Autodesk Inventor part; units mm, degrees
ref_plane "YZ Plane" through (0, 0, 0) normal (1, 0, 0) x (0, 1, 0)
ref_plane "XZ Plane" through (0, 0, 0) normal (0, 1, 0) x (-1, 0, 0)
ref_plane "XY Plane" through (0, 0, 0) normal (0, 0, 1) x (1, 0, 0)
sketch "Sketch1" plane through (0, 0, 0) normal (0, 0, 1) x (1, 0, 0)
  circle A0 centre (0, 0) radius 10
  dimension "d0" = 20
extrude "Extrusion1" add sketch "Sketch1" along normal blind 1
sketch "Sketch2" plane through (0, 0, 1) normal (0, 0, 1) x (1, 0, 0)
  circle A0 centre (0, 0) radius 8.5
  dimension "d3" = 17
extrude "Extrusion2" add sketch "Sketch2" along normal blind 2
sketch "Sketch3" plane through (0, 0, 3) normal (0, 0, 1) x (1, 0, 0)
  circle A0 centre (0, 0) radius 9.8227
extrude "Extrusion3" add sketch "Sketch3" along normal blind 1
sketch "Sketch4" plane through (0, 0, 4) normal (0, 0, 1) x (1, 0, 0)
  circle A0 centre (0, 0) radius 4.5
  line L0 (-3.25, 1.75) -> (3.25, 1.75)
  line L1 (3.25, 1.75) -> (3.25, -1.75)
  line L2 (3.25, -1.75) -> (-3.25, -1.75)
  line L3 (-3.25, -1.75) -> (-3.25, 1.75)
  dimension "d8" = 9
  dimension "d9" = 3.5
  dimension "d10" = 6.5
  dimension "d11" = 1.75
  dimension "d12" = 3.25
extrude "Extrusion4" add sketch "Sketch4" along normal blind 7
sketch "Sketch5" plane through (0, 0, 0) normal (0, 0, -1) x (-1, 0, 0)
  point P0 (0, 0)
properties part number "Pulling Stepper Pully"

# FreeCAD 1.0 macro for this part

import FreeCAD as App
import Part
import Sketcher
from FreeCAD import Vector
Q = App.Units.Quantity

doc = App.newDocument("Part")
body = doc.addObject("PartDesign::Body", "Body")

# Sketch on XY plane
sketch1 = doc.addObject("Sketcher::SketchObject", "Sketch")
body.addObject(sketch1)
sketch1.AttachmentSupport = (doc.XY_Plane, [""])
sketch1.MapMode = "FlatFace"
sketch1.addGeometry(Part.Circle(Vector(0, 0, 0), Vector(0, 0, 1), 10), False)
sketch1.addConstraint(Sketcher.Constraint("Coincident", 0, 3, -1, 1))
sketch1.addConstraint(Sketcher.Constraint("Diameter", 0, Q("20 mm")))
pad1 = doc.addObject("PartDesign::Pad", "Pad")
body.addObject(pad1)
pad1.Profile = sketch1
pad1.Length = 1

# Sketch on XY plane
sketch2 = doc.addObject("Sketcher::SketchObject", "Sketch001")
body.addObject(sketch2)
sketch2.AttachmentSupport = (doc.XY_Plane, [""])
sketch2.MapMode = "FlatFace"
sketch2.AttachmentOffset = App.Placement(Vector(0, 0, 1), App.Rotation())
sketch2.addGeometry(Part.Circle(Vector(0, 0, 0), Vector(0, 0, 1), 8), False)
sketch2.addConstraint(Sketcher.Constraint("Coincident", 0, 3, -1, 1))
sketch2.addConstraint(Sketcher.Constraint("Diameter", 0, Q("17 mm")))
pad2 = doc.addObject("PartDesign::Pad", "Pad001")
body.addObject(pad2)
pad2.Profile = sketch2
pad2.Length = 2

# Sketch on XY plane
sketch3 = doc.addObject("Sketcher::SketchObject", "Sketch002")
body.addObject(sketch3)
sketch3.AttachmentSupport = (doc.XY_Plane, [""])
sketch3.MapMode = "FlatFace"
sketch3.AttachmentOffset = App.Placement(Vector(0, 0, 3), App.Rotation())
sketch3.addGeometry(Part.Circle(Vector(0, 0, 0), Vector(0, 0, 1), 10), False)
sketch3.addConstraint(Sketcher.Constraint("Coincident", 0, 3, -1, 1))
sketch3.addConstraint(Sketcher.Constraint("Diameter", 0, Q("19.6454 mm")))
pad3 = doc.addObject("PartDesign::Pad", "Pad002")
body.addObject(pad3)
pad3.Profile = sketch3
pad3.Length = 1

# Sketch on XY plane
sketch4 = doc.addObject("Sketcher::SketchObject", "Sketch003")
body.addObject(sketch4)
sketch4.AttachmentSupport = (doc.XY_Plane, [""])
sketch4.MapMode = "FlatFace"
sketch4.AttachmentOffset = App.Placement(Vector(0, 0, 4), App.Rotation())
sketch4.addGeometry(Part.Circle(Vector(0, 0, 0), Vector(0, 0, 1), 4.5), False)
sketch4.addGeometry(Part.LineSegment(Vector(-3.2, -1.8, 0), Vector(-3.2, 1.8, 0)), False)
sketch4.addGeometry(Part.LineSegment(Vector(-3.2, 1.8, 0), Vector(3.2, 1.8, 0)), False)
sketch4.addGeometry(Part.LineSegment(Vector(3.2, 1.8, 0), Vector(3.2, -1.8, 0)), False)
sketch4.addGeometry(Part.LineSegment(Vector(3.2, -1.8, 0), Vector(-3.2, -1.8, 0)), False)
sketch4.addConstraint(Sketcher.Constraint("Coincident", 1, 2, 2, 1))
sketch4.addConstraint(Sketcher.Constraint("Coincident", 2, 2, 3, 1))
sketch4.addConstraint(Sketcher.Constraint("Coincident", 3, 2, 4, 1))
sketch4.addConstraint(Sketcher.Constraint("Coincident", 4, 2, 1, 1))
sketch4.addConstraint(Sketcher.Constraint("Vertical", 1))
sketch4.addConstraint(Sketcher.Constraint("Horizontal", 2))
sketch4.addConstraint(Sketcher.Constraint("Vertical", 3))
sketch4.addConstraint(Sketcher.Constraint("Horizontal", 4))
sketch4.addConstraint(Sketcher.Constraint("Coincident", 0, 3, -1, 1))
sketch4.addConstraint(Sketcher.Constraint("Symmetric", 1, 2, 3, 2, -1, 1))
sketch4.addConstraint(Sketcher.Constraint("Diameter", 0, Q("9 mm")))
sketch4.addConstraint(Sketcher.Constraint("DistanceX", 2, 1, 2, 2, Q("6.5 mm")))
sketch4.addConstraint(Sketcher.Constraint("DistanceY", 1, 1, 1, 2, Q("3.5 mm")))
pad4 = doc.addObject("PartDesign::Pad", "Pad003")
body.addObject(pad4)
pad4.Profile = sketch4
pad4.Length = 7

doc.recompute()
